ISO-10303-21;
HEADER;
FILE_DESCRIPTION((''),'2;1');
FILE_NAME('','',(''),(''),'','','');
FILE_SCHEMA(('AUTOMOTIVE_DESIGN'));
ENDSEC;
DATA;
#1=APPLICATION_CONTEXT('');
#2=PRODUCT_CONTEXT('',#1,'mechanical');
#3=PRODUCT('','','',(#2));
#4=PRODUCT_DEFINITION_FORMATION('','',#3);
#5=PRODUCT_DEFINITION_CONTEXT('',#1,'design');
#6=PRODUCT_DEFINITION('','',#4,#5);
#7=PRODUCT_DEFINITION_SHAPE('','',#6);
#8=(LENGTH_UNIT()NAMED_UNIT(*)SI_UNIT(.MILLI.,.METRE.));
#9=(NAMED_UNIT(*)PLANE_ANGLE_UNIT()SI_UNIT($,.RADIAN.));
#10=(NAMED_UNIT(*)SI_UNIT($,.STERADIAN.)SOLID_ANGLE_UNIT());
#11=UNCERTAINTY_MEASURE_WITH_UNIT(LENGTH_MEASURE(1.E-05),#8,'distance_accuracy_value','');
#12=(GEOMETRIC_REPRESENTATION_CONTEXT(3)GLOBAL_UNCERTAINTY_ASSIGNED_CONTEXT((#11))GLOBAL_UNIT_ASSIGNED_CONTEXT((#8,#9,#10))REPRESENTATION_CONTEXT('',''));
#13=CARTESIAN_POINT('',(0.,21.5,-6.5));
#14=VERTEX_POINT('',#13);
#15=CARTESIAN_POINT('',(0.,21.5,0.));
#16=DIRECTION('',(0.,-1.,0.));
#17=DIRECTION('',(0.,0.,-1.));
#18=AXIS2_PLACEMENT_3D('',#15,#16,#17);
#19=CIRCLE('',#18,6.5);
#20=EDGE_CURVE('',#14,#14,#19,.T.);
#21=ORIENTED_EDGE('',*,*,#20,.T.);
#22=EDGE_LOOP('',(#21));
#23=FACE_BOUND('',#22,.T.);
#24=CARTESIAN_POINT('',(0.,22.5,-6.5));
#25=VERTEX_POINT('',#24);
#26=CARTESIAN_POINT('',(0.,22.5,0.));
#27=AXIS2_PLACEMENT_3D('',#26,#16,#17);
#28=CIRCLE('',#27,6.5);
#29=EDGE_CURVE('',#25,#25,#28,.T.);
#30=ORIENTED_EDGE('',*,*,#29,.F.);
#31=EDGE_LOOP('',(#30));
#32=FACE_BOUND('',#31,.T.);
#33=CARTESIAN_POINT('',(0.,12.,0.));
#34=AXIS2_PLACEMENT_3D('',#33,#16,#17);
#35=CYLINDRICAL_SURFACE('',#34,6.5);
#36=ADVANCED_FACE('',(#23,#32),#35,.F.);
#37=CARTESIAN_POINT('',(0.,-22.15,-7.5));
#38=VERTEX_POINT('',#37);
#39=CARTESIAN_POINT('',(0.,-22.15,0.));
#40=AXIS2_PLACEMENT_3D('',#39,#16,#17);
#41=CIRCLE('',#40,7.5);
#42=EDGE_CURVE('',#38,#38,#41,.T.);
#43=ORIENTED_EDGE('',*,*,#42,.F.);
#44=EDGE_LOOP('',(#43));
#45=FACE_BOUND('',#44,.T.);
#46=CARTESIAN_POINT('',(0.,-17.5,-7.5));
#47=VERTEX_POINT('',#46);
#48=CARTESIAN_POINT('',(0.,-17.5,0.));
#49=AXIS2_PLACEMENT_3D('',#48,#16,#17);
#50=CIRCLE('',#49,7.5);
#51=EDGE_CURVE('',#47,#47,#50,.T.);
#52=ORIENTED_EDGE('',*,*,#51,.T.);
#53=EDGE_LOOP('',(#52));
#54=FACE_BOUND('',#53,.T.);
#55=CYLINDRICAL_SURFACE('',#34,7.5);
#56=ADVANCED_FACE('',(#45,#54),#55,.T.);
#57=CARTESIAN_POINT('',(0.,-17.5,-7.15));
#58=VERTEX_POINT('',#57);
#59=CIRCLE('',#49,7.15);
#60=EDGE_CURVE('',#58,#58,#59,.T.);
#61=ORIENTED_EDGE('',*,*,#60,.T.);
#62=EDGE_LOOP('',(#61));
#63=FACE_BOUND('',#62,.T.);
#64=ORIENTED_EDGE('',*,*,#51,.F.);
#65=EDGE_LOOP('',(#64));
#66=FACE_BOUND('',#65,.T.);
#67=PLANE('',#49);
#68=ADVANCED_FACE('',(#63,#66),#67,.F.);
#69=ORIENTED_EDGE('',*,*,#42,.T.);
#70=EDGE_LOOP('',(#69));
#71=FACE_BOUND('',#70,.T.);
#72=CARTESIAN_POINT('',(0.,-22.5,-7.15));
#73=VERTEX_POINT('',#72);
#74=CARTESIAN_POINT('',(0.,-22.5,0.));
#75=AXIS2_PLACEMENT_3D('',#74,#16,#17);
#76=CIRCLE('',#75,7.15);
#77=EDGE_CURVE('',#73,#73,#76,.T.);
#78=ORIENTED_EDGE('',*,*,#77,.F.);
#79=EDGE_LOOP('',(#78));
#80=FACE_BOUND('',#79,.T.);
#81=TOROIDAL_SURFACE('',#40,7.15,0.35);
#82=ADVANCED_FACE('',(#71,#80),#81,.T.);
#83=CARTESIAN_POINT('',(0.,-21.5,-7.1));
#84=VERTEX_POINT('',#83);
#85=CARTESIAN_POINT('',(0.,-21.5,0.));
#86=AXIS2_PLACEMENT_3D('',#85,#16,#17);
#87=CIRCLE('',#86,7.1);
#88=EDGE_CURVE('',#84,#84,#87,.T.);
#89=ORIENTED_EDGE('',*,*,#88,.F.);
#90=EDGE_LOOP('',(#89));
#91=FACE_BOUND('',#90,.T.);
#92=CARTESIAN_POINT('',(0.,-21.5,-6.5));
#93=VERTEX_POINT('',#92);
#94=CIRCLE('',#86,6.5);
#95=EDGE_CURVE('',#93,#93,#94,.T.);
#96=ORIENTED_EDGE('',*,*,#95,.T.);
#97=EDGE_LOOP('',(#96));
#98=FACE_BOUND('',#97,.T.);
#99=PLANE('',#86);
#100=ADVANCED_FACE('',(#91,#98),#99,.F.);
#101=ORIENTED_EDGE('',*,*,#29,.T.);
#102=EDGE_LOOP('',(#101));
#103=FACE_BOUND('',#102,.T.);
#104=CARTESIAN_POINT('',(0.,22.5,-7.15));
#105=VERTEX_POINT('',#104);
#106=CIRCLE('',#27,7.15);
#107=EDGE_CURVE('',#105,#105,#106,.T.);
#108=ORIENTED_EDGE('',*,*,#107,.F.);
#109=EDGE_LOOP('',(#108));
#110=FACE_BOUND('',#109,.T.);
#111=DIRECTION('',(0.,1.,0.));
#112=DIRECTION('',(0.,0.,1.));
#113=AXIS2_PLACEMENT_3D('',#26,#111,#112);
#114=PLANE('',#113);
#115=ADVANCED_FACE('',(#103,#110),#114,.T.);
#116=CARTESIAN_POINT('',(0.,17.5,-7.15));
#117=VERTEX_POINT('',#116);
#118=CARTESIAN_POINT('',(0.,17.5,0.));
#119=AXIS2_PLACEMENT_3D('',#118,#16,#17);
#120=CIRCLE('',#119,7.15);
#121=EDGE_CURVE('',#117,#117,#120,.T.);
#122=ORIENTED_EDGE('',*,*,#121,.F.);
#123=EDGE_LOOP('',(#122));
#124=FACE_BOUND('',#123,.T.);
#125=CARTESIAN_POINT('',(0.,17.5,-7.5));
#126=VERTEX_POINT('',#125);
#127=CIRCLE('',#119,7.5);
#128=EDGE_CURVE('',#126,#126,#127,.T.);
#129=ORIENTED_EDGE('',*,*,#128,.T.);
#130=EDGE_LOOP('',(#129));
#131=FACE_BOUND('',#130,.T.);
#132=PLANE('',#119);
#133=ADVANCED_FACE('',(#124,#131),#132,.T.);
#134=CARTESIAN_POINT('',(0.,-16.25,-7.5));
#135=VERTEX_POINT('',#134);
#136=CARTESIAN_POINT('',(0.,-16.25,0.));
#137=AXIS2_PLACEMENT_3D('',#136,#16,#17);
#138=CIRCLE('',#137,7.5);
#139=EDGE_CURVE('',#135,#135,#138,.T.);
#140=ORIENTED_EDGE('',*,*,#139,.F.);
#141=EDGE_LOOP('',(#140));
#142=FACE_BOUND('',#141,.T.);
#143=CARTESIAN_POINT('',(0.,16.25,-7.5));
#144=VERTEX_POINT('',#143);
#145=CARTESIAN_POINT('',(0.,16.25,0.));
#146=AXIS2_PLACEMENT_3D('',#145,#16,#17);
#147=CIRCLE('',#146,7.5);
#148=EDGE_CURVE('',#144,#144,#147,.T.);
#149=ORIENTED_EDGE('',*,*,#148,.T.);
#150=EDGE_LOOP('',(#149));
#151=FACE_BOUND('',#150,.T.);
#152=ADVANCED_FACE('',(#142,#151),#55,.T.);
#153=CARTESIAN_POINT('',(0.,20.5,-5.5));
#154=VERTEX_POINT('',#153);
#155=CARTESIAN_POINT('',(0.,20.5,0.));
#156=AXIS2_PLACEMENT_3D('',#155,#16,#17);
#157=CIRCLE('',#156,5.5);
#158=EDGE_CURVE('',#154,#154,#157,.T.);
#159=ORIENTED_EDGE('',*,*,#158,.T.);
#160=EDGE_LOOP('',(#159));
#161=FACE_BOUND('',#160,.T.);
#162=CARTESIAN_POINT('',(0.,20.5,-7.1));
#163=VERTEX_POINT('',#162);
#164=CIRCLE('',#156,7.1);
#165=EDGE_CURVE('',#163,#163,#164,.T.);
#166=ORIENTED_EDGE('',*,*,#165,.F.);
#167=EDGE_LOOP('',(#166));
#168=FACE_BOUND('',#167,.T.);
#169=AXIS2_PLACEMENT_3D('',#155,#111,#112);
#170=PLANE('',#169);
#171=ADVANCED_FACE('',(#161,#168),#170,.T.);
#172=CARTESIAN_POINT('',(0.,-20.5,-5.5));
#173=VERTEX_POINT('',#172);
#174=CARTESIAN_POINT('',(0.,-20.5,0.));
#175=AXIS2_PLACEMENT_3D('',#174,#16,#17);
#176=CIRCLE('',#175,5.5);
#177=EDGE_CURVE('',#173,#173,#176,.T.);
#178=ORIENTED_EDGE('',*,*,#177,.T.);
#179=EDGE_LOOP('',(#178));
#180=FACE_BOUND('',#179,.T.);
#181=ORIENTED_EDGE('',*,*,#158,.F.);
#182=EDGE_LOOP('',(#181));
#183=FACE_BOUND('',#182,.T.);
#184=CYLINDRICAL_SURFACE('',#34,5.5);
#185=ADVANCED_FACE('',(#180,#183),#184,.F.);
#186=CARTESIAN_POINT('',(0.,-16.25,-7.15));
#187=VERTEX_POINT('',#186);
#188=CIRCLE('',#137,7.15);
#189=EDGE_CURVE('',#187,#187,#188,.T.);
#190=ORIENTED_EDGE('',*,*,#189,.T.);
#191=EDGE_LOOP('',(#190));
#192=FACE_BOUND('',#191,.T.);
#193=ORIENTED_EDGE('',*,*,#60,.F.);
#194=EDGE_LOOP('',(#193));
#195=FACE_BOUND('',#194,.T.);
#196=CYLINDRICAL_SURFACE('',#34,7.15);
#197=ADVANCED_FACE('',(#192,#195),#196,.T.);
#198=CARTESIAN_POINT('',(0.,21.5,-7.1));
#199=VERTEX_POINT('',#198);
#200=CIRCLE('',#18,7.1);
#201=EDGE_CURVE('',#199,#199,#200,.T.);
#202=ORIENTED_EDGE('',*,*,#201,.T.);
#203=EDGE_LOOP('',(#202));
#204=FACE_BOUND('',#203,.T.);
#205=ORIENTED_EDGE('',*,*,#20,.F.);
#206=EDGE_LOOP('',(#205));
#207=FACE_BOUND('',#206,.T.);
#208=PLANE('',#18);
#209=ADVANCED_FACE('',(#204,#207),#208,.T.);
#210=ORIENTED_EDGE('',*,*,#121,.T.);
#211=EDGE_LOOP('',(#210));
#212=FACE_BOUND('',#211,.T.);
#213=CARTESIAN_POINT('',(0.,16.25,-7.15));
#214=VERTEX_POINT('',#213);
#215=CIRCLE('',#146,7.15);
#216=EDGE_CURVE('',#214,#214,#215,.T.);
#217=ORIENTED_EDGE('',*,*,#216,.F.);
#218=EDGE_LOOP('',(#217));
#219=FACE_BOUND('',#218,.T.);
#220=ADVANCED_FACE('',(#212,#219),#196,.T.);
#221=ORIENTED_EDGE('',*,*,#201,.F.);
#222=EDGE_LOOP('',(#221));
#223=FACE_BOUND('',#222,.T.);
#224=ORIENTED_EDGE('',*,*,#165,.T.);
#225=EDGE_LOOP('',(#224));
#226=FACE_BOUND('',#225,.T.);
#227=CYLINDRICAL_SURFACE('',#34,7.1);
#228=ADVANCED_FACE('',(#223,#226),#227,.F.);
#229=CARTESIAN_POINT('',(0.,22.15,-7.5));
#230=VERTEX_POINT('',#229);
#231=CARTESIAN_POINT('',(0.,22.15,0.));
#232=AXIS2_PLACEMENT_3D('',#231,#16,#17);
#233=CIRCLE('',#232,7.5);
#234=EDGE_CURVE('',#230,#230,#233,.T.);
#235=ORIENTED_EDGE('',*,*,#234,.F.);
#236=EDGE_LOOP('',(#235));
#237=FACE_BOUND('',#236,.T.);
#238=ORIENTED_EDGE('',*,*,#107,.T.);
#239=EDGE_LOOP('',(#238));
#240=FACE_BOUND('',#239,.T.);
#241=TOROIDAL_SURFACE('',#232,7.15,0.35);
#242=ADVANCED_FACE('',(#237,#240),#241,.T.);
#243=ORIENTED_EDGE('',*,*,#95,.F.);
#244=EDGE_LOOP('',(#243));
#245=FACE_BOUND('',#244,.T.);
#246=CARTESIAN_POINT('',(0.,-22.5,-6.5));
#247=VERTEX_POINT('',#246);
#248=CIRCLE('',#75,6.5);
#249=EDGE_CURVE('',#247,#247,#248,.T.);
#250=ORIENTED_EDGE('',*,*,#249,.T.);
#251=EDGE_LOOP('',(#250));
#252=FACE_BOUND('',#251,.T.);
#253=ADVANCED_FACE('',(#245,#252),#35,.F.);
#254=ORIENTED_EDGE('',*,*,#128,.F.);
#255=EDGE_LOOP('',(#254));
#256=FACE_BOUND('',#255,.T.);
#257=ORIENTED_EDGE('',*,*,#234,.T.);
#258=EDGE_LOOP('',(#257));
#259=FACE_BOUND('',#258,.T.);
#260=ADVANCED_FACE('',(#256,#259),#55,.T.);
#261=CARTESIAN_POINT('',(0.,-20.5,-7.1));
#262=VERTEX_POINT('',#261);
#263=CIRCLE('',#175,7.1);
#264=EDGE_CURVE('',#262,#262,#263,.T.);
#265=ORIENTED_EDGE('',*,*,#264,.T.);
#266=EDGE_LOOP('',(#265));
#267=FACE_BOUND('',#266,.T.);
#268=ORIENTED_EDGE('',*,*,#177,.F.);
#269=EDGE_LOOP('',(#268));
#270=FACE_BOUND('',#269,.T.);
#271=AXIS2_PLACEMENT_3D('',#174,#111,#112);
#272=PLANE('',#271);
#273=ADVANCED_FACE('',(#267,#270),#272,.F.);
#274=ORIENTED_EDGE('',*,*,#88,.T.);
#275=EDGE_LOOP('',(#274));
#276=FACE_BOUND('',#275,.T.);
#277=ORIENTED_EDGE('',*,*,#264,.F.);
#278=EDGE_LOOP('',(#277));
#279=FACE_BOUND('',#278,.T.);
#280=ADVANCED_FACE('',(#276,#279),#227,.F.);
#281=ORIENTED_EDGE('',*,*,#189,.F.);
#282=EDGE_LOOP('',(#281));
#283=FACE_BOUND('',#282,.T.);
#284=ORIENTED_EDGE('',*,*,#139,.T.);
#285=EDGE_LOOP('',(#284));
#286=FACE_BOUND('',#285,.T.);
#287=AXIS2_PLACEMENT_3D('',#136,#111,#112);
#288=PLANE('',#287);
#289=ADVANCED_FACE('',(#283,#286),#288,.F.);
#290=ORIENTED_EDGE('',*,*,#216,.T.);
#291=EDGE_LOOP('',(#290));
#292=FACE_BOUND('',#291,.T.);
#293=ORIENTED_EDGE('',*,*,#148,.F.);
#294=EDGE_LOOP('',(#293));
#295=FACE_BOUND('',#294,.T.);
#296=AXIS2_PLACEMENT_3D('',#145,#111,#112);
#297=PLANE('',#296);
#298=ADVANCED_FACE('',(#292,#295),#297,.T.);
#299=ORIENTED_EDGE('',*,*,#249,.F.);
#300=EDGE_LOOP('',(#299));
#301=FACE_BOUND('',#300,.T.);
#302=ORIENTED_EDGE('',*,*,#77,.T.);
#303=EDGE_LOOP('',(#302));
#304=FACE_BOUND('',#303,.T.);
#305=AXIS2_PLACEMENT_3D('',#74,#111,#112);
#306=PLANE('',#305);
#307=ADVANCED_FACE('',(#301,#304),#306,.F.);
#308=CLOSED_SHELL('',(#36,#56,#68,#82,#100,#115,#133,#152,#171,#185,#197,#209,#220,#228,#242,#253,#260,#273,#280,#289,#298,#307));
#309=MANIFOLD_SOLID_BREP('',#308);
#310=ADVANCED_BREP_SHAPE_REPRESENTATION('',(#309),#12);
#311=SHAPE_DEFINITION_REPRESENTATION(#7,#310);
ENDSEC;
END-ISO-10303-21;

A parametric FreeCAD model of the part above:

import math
import FreeCAD as App
import Part
import Sketcher

V = App.Vector

doc = App.newDocument("Part")
params = doc.addObject("Spreadsheet::Sheet", "Params")
for row, (alias, value) in enumerate([
    ("sketch1_width", "1 mm"),
    ("sketch1_width2", "41 mm"),
    ("sketch1_radius", "0.35 mm"),
    ("sketch1_width3", "32.5 mm"),
    ("sketch1_height", "0.6 mm"),
    ("revolution_angle", "360 deg"),
], start=1):
    params.set(f"A{row}", alias)
    params.set(f"B{row}", "=" + value)
    params.setAlias(f"B{row}", alias)

body = doc.addObject("PartDesign::Body", "Body")

# Sketch on YZ plane
sketch1 = body.newObject("Sketcher::SketchObject", "Sketch")
sketch1.AttachmentSupport = (doc.getObject("YZ_Plane"), [""])
sketch1.MapMode = "FlatFace"
sketch1.addGeometry(Part.LineSegment(V(17.5, -7.5, 0), V(22.15, -7.5, 0)), False)
sketch1.addGeometry(Part.ArcOfCircle(Part.Circle(V(22.15, -7.15, 0), V(0, 0, 1), 0.35), math.radians(-90), math.radians(0)), False)
sketch1.addGeometry(Part.LineSegment(V(22.5, -7.15, 0), V(22.5, -6.5, 0)), False)
sketch1.addGeometry(Part.LineSegment(V(22.5, -6.5, 0), V(21.5, -6.5, 0)), False)
sketch1.addGeometry(Part.LineSegment(V(21.5, -6.5, 0), V(21.5, -7.1, 0)), False)
sketch1.addGeometry(Part.LineSegment(V(21.5, -7.1, 0), V(20.5, -7.1, 0)), False)
sketch1.addGeometry(Part.LineSegment(V(20.5, -7.1, 0), V(20.5, -5.5, 0)), False)
sketch1.addGeometry(Part.LineSegment(V(20.5, -5.5, 0), V(-20.5, -5.5, 0)), False)
sketch1.addGeometry(Part.LineSegment(V(-20.5, -5.5, 0), V(-20.5, -7.1, 0)), False)
sketch1.addGeometry(Part.LineSegment(V(-20.5, -7.1, 0), V(-21.5, -7.1, 0)), False)
sketch1.addGeometry(Part.LineSegment(V(-21.5, -7.1, 0), V(-21.5, -6.5, 0)), False)
sketch1.addGeometry(Part.LineSegment(V(-21.5, -6.5, 0), V(-22.5, -6.5, 0)), False)
sketch1.addGeometry(Part.LineSegment(V(-22.5, -6.5, 0), V(-22.5, -7.15, 0)), False)
sketch1.addGeometry(Part.ArcOfCircle(Part.Circle(V(-22.15, -7.15, 0), V(0, 0, 1), 0.35), math.radians(-180), math.radians(-90)), False)
sketch1.addGeometry(Part.LineSegment(V(-22.15, -7.5, 0), V(-17.5, -7.5, 0)), False)
sketch1.addGeometry(Part.LineSegment(V(-17.5, -7.5, 0), V(-17.5, -7.15, 0)), False)
sketch1.addGeometry(Part.LineSegment(V(-17.5, -7.15, 0), V(-16.25, -7.15, 0)), False)
sketch1.addGeometry(Part.LineSegment(V(-16.25, -7.15, 0), V(-16.25, -7.5, 0)), False)
sketch1.addGeometry(Part.LineSegment(V(-16.25, -7.5, 0), V(16.25, -7.5, 0)), False)
sketch1.addGeometry(Part.LineSegment(V(16.25, -7.5, 0), V(16.25, -7.15, 0)), False)
sketch1.addGeometry(Part.LineSegment(V(16.25, -7.15, 0), V(17.5, -7.15, 0)), False)
sketch1.addGeometry(Part.LineSegment(V(17.5, -7.15, 0), V(17.5, -7.5, 0)), False)
sketch1.addConstraint(Sketcher.Constraint("Tangent", 0, 2, 1, 1))
sketch1.addConstraint(Sketcher.Constraint("Tangent", 1, 2, 2, 1))
sketch1.addConstraint(Sketcher.Constraint("Coincident", 2, 2, 3, 1))
sketch1.addConstraint(Sketcher.Constraint("Coincident", 3, 2, 4, 1))
sketch1.addConstraint(Sketcher.Constraint("Coincident", 4, 2, 5, 1))
sketch1.addConstraint(Sketcher.Constraint("Coincident", 5, 2, 6, 1))
sketch1.addConstraint(Sketcher.Constraint("Coincident", 6, 2, 7, 1))
sketch1.addConstraint(Sketcher.Constraint("Coincident", 7, 2, 8, 1))
sketch1.addConstraint(Sketcher.Constraint("Coincident", 8, 2, 9, 1))
sketch1.addConstraint(Sketcher.Constraint("Coincident", 9, 2, 10, 1))
sketch1.addConstraint(Sketcher.Constraint("Coincident", 10, 2, 11, 1))
sketch1.addConstraint(Sketcher.Constraint("Coincident", 11, 2, 12, 1))
sketch1.addConstraint(Sketcher.Constraint("Tangent", 12, 2, 13, 1))
sketch1.addConstraint(Sketcher.Constraint("Tangent", 13, 2, 14, 1))
sketch1.addConstraint(Sketcher.Constraint("Coincident", 14, 2, 15, 1))
sketch1.addConstraint(Sketcher.Constraint("Coincident", 15, 2, 16, 1))
sketch1.addConstraint(Sketcher.Constraint("Coincident", 16, 2, 17, 1))
sketch1.addConstraint(Sketcher.Constraint("Coincident", 17, 2, 18, 1))
sketch1.addConstraint(Sketcher.Constraint("Coincident", 18, 2, 19, 1))
sketch1.addConstraint(Sketcher.Constraint("Coincident", 19, 2, 20, 1))
sketch1.addConstraint(Sketcher.Constraint("Coincident", 20, 2, 21, 1))
sketch1.addConstraint(Sketcher.Constraint("Coincident", 21, 2, 0, 1))
sketch1.addConstraint(Sketcher.Constraint("Horizontal", 0))
sketch1.addConstraint(Sketcher.Constraint("Vertical", 2))
sketch1.addConstraint(Sketcher.Constraint("Horizontal", 3))
sketch1.addConstraint(Sketcher.Constraint("Vertical", 4))
sketch1.addConstraint(Sketcher.Constraint("Horizontal", 5))
sketch1.addConstraint(Sketcher.Constraint("Vertical", 6))
sketch1.addConstraint(Sketcher.Constraint("Horizontal", 7))
sketch1.addConstraint(Sketcher.Constraint("Vertical", 8))
sketch1.addConstraint(Sketcher.Constraint("Horizontal", 9))
sketch1.addConstraint(Sketcher.Constraint("Vertical", 10))
sketch1.addConstraint(Sketcher.Constraint("Horizontal", 11))
sketch1.addConstraint(Sketcher.Constraint("Vertical", 12))
sketch1.addConstraint(Sketcher.Constraint("Horizontal", 14))
sketch1.addConstraint(Sketcher.Constraint("Vertical", 15))
sketch1.addConstraint(Sketcher.Constraint("Horizontal", 16))
sketch1.addConstraint(Sketcher.Constraint("Vertical", 17))
sketch1.addConstraint(Sketcher.Constraint("Horizontal", 18))
sketch1.addConstraint(Sketcher.Constraint("Vertical", 19))
sketch1.addConstraint(Sketcher.Constraint("Horizontal", 20))
sketch1.addConstraint(Sketcher.Constraint("Vertical", 21))
sketch1.addConstraint(Sketcher.Constraint("Equal", 1, 13))
sketch1.addConstraint(Sketcher.Constraint("Symmetric", 1, 3, 13, 3, -2))
sketch1.addConstraint(Sketcher.Constraint("Symmetric", 5, 2, 8, 2, -2))
sketch1.addConstraint(Sketcher.Constraint("Symmetric", 3, 2, 10, 2, -2))
sketch1.addConstraint(Sketcher.Constraint("Symmetric", 16, 2, 19, 2, -2))
sketch1.addConstraint(Sketcher.Constraint("Horizontal", 12, 2, 15, 2))
sketch1.addConstraint(Sketcher.Constraint("Horizontal", 14, 2, 17, 2))
sketch1.addConstraint(Sketcher.Constraint("Equal", 3, 5))
sketch1.addConstraint(Sketcher.Constraint("Equal", 0, 14))
sketch1.addConstraint(Sketcher.Constraint("DistanceX", 3, 2, 3, 1, 1.0))
sketch1.addConstraint(Sketcher.Constraint("DistanceX", 7, 2, 7, 1, 41.0))
sketch1.addConstraint(Sketcher.Constraint("Radius", 1, 0.35))
sketch1.addConstraint(Sketcher.Constraint("DistanceX", 18, 1, 18, 2, 32.5))
sketch1.addConstraint(Sketcher.Constraint("DistanceY", 4, 2, 4, 1, 0.6))
sketch1.addConstraint(Sketcher.Constraint("DistanceY", 6, 1, 6, 2, 1.6))
sketch1.addConstraint(Sketcher.Constraint("DistanceY", 0, 2, 2, 2, 1.0))
sketch1.addConstraint(Sketcher.Constraint("DistanceX", 8, 2, 14, 2, 3.0))
sketch1.addConstraint(Sketcher.Constraint("DistanceY", 0, 2, -1, 1, 7.5))
sketch1.setExpression("Constraints[51]", "Params.sketch1_width")
sketch1.setExpression("Constraints[52]", "Params.sketch1_width2")
sketch1.setExpression("Constraints[53]", "Params.sketch1_radius")
sketch1.setExpression("Constraints[54]", "Params.sketch1_width3")
sketch1.setExpression("Constraints[55]", "Params.sketch1_height")
revolution = body.newObject("PartDesign::Revolution", "Revolution")
revolution.Profile = sketch1
revolution.ReferenceAxis = (sketch1, ["H_Axis"])
revolution.setExpression("Angle", "Params.revolution_angle")

doc.recompute()
